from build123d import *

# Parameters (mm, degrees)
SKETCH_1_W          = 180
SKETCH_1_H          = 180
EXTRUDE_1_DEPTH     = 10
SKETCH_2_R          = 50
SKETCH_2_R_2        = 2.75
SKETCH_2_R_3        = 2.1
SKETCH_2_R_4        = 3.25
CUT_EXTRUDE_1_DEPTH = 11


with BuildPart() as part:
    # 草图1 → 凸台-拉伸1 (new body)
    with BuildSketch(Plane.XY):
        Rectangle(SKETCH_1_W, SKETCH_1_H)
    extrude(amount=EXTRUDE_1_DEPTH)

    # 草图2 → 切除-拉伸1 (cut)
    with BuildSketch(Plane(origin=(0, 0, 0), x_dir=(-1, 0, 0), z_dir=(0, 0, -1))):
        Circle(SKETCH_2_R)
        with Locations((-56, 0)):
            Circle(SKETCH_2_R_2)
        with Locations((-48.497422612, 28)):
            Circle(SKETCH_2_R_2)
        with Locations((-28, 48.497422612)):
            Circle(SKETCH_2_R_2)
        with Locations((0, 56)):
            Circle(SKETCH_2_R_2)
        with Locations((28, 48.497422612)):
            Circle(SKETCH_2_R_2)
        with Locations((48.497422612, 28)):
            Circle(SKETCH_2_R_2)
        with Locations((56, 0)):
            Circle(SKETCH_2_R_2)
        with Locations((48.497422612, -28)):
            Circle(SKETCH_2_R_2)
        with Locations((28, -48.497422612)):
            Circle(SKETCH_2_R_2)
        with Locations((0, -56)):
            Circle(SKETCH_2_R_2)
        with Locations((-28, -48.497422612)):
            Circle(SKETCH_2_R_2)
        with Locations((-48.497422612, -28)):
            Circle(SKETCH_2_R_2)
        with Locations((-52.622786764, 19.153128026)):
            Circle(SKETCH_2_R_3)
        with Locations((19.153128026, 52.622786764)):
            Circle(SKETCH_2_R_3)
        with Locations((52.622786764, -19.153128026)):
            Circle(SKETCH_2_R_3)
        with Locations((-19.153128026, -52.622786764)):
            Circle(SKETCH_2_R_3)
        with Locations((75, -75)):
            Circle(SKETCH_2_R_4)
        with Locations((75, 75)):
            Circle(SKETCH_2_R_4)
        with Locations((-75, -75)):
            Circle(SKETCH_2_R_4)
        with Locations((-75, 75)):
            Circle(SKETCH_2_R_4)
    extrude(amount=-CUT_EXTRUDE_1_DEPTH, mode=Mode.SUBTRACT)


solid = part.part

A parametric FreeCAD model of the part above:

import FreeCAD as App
import Part
import Sketcher

V = App.Vector
Q = App.Units.Quantity

doc = App.newDocument("Part")
body = doc.addObject("PartDesign::Body", "Body")

sketch1 = doc.addObject("Sketcher::SketchObject", "Sketch")
body.addObject(sketch1)
sketch1.AttachmentSupport = (doc.XY_Plane, [""])
sketch1.MapMode = "FlatFace"
sketch1.addGeometry([
    Part.LineSegment(V(-90, 90, 0), V(-90, -90, 0)),
    Part.LineSegment(V(-90, -90, 0), V(90, -90, 0)),
    Part.LineSegment(V(90, -90, 0), V(90, 90, 0)),
    Part.LineSegment(V(90, 90, 0), V(-90, 90, 0)),
], False)
sketch1.addConstraint([
    Sketcher.Constraint("Coincident", 0, 2, 1, 1),
    Sketcher.Constraint("Coincident", 1, 2, 2, 1),
    Sketcher.Constraint("Coincident", 2, 2, 3, 1),
    Sketcher.Constraint("Coincident", 3, 2, 0, 1),
    Sketcher.Constraint("Vertical", 0),
    Sketcher.Constraint("Horizontal", 1),
    Sketcher.Constraint("Vertical", 2),
    Sketcher.Constraint("Horizontal", 3),
    Sketcher.Constraint("Symmetric", 0, 2, 2, 2, -1, 1),
    Sketcher.Constraint("Equal", 3, 0),
    Sketcher.Constraint("DistanceX", 1, 1, 1, 2, Q("180 mm")),
])
pad1 = doc.addObject("PartDesign::Pad", "Pad")
body.addObject(pad1)
pad1.Profile = sketch1
pad1.Length = 10

sketch2 = doc.addObject("Sketcher::SketchObject", "Sketch001")
body.addObject(sketch2)
sketch2.AttachmentSupport = (doc.XY_Plane, [""])
sketch2.MapMode = "FlatFace"
sketch2.addGeometry([
    Part.Circle(V(0, 0, 0), V(0, 0, 1), 50),
    Part.Circle(V(56, 0, 0), V(0, 0, 1), 2.8),
    Part.Circle(V(48.5, 28, 0), V(0, 0, 1), 2.8),
    Part.Circle(V(28, 48.5, 0), V(0, 0, 1), 2.8),
    Part.Circle(V(0, 56, 0), V(0, 0, 1), 2.8),
    Part.Circle(V(-28, 48.5, 0), V(0, 0, 1), 2.8),
    Part.Circle(V(-48.5, 28, 0), V(0, 0, 1), 2.8),
    Part.Circle(V(-56, 0, 0), V(0, 0, 1), 2.8),
    Part.Circle(V(-48.5, -28, 0), V(0, 0, 1), 2.8),
    Part.Circle(V(-28, -48.5, 0), V(0, 0, 1), 2.8),
    Part.Circle(V(0, -56, 0), V(0, 0, 1), 2.8),
    Part.Circle(V(28, -48.5, 0), V(0, 0, 1), 2.8),
    Part.Circle(V(48.5, -28, 0), V(0, 0, 1), 2.8),
    Part.Circle(V(52.6, 19.2, 0), V(0, 0, 1), 2.1),
    Part.Circle(V(-19.2, 52.6, 0), V(0, 0, 1), 2.1),
    Part.Circle(V(-52.6, -19.2, 0), V(0, 0, 1), 2.1),
    Part.Circle(V(19.2, -52.6, 0), V(0, 0, 1), 2.1),
    Part.Circle(V(-75, -75, 0), V(0, 0, 1), 3.2),
    Part.Circle(V(-75, 75, 0), V(0, 0, 1), 3.2),
    Part.Circle(V(75, -75, 0), V(0, 0, 1), 3.2),
    Part.Circle(V(75, 75, 0), V(0, 0, 1), 3.2),
], False)
sketch2.addConstraint([
    Sketcher.Constraint("Coincident", 0, 3, -1, 1),
    Sketcher.Constraint("Equal", 1, 2),
    Sketcher.Constraint("Equal", 2, 3),
    Sketcher.Constraint("Equal", 3, 4),
    Sketcher.Constraint("Equal", 4, 5),
    Sketcher.Constraint("Equal", 5, 6),
    Sketcher.Constraint("Equal", 6, 7),
    Sketcher.Constraint("Equal", 7, 8),
    Sketcher.Constraint("Equal", 8, 9),
    Sketcher.Constraint("Equal", 9, 10),
    Sketcher.Constraint("Equal", 10, 11),
    Sketcher.Constraint("Equal", 11, 12),
    Sketcher.Constraint("Equal", 13, 14),
    Sketcher.Constraint("Equal", 14, 15),
    Sketcher.Constraint("Equal", 15, 16),
    Sketcher.Constraint("Equal", 17, 18),
    Sketcher.Constraint("Equal", 18, 19),
    Sketcher.Constraint("Equal", 19, 20),
    Sketcher.Constraint("Symmetric", 1, 3, 7, 3, -1, 1),
    Sketcher.Constraint("Symmetric", 2, 3, 8, 3, -1, 1),
    Sketcher.Constraint("Symmetric", 3, 3, 9, 3, -1, 1),
    Sketcher.Constraint("Symmetric", 4, 3, 10, 3, -1, 1),
    Sketcher.Constraint("Symmetric", 5, 3, 11, 3, -1, 1),
    Sketcher.Constraint("Symmetric", 6, 3, 12, 3, -1, 1),
    Sketcher.Constraint("Symmetric", 13, 3, 15, 3, -1, 1),
    Sketcher.Constraint("Symmetric", 14, 3, 16, 3, -1, 1),
    Sketcher.Constraint("Symmetric", 18, 3, 19, 3, -1, 1),
    Sketcher.Constraint("Symmetric", 17, 3, 20, 3, -1, 1),
    Sketcher.Constraint("Symmetric", 3, 3, 5, 3, -2),
    Sketcher.Constraint("Symmetric", 2, 3, 6, 3, -2),
    Sketcher.Constraint("Symmetric", 17, 3, 19, 3, -2),
    Sketcher.Constraint("PointOnObject", 1, 3, -1),
    Sketcher.Constraint("PointOnObject", 4, 3, -2),
    Sketcher.Constraint("Diameter", 0, Q("100 mm")),
    Sketcher.Constraint("Diameter", 1, Q("5.5 mm")),
    Sketcher.Constraint("Diameter", 13, Q("4.2 mm")),
    Sketcher.Constraint("Diameter", 17, Q("6.5 mm")),
    Sketcher.Constraint("DistanceX", -1, 1, 1, 3, Q("56 mm")),
    Sketcher.Constraint("DistanceY", -1, 1, 2, 3, Q("28 mm")),
    Sketcher.Constraint("DistanceX", -1, 1, 3, 3, Q("28 mm")),
    Sketcher.Constraint("DistanceY", -1, 1, 4, 3, Q("56 mm")),
    Sketcher.Constraint("DistanceX", 17, 3, -1, 1, Q("75 mm")),
    Sketcher.Constraint("DistanceY", 17, 3, -1, 1, Q("75 mm")),
    Sketcher.Constraint("DistanceY", -1, 1, 13, 3, Q("19.153128 mm")),
    Sketcher.Constraint("DistanceX", 14, 3, -1, 1, Q("19.153128 mm")),
    Sketcher.Constraint("DistanceX", -1, 1, 2, 3, Q("48.497423 mm")),
    Sketcher.Constraint("DistanceY", -1, 1, 3, 3, Q("48.497423 mm")),
    Sketcher.Constraint("DistanceX", -1, 1, 13, 3, Q("52.622787 mm")),
    Sketcher.Constraint("DistanceY", -1, 1, 14, 3, Q("52.622787 mm")),
])
pocket1 = doc.addObject("PartDesign::Pocket", "Pocket")
body.addObject(pocket1)
pocket1.Profile = sketch2
pocket1.Length = 11
pocket1.Reversed = True

doc.recompute()
